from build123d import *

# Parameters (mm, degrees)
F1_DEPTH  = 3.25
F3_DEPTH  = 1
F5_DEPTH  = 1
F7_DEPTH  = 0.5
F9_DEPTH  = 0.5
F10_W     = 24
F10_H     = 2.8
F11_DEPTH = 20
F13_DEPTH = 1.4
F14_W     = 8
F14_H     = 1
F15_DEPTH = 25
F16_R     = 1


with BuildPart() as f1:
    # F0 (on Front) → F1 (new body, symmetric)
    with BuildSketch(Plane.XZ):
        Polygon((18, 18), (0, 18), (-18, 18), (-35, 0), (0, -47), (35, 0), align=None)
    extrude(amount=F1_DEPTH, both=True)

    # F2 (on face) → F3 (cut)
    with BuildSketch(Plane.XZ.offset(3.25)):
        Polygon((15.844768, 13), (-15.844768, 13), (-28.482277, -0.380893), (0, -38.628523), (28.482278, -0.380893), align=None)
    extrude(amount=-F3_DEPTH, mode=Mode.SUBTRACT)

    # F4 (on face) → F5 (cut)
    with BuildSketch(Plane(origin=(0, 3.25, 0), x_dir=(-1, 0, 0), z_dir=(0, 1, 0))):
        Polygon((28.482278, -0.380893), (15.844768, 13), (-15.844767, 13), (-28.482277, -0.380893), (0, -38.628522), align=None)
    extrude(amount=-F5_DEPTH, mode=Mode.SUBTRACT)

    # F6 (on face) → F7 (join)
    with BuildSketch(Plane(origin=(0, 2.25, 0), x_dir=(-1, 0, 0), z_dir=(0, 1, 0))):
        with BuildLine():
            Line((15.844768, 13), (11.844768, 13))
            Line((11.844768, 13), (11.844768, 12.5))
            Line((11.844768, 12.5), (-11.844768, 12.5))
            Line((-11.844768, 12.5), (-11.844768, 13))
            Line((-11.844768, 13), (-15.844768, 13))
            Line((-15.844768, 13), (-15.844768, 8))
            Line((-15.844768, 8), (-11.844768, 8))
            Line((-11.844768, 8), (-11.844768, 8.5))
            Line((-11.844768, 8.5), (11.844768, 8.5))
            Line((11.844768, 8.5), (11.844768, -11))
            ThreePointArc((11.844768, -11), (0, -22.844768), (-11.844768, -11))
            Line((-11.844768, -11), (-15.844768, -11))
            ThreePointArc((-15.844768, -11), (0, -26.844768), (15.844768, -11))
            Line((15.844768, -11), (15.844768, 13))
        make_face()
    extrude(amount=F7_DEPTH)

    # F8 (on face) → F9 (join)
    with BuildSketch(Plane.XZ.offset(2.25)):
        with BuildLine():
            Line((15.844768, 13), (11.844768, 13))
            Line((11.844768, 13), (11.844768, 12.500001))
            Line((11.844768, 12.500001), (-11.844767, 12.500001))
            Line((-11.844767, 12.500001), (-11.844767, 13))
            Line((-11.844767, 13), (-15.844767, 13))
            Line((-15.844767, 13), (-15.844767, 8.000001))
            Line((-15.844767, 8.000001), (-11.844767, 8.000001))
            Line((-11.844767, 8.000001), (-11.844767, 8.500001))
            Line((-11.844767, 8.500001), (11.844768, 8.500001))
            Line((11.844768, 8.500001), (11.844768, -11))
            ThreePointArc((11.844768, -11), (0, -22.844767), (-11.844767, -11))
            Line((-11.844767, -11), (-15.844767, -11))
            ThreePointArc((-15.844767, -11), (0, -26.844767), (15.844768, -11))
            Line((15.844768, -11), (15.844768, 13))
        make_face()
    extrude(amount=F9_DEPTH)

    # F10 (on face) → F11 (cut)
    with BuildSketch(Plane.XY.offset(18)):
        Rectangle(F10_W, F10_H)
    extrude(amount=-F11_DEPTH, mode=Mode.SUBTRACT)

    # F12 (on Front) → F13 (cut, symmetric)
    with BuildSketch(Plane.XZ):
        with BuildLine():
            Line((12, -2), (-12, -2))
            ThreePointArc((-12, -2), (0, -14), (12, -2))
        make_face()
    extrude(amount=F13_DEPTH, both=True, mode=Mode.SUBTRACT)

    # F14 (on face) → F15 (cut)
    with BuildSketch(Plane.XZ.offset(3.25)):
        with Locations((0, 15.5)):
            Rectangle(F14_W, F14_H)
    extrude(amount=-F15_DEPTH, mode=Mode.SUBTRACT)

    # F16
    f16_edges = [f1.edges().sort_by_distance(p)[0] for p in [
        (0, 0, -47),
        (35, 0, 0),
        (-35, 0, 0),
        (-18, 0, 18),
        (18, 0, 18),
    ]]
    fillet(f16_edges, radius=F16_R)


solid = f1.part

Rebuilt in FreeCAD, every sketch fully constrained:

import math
import FreeCAD as App
import Part
import Sketcher


def edges_at(feature, points):
    """Names of the edges that pass closest to the given points."""
    edges = feature.Shape.Edges
    near = lambda p: min(range(len(edges)), key=lambda i: edges[i].distToShape(Part.Vertex(*p))[0])
    return sorted({f"Edge{near(p) + 1}" for p in points})

doc = App.newDocument("Part")
body = doc.addObject("PartDesign::Body", "Body")

sketch1 = doc.addObject("Sketcher::SketchObject", "Sketch")
body.addObject(sketch1)
sketch1.AttachmentSupport = (doc.XZ_Plane, [""])
sketch1.MapMode = "FlatFace"
sketch1.addGeometry([
    Part.LineSegment(App.Vector(18, 18, 0), App.Vector(-18, 18, 0)),
    Part.LineSegment(App.Vector(-18, 18, 0), App.Vector(-35, 0, 0)),
    Part.LineSegment(App.Vector(-35, 0, 0), App.Vector(0, -47, 0)),
    Part.LineSegment(App.Vector(0, -47, 0), App.Vector(35, 0, 0)),
    Part.LineSegment(App.Vector(35, 0, 0), App.Vector(18, 18, 0)),
], False)
sketch1.addConstraint([
    Sketcher.Constraint("Coincident", 0, 2, 1, 1),
    Sketcher.Constraint("Coincident", 1, 2, 2, 1),
    Sketcher.Constraint("Coincident", 2, 2, 3, 1),
    Sketcher.Constraint("Coincident", 3, 2, 4, 1),
    Sketcher.Constraint("Coincident", 4, 2, 0, 1),
    Sketcher.Constraint("Horizontal", 0),
    Sketcher.Constraint("Symmetric", 1, 2, 3, 2, -1, 1),
    Sketcher.Constraint("PointOnObject", 1, 2, -1),
    Sketcher.Constraint("PointOnObject", 2, 2, -2),
    Sketcher.Constraint("Equal", 1, 4),
    Sketcher.Constraint("DistanceX", 0, 2, 0, 1, 36.0),
    Sketcher.Constraint("DistanceY", -1, 1, 0, 2, 18.0),
    Sketcher.Constraint("DistanceX", 1, 2, -1, 1, 35.0),
    Sketcher.Constraint("DistanceY", 2, 2, -1, 1, 47.0),
])
pad1 = doc.addObject("PartDesign::Pad", "Pad")
body.addObject(pad1)
pad1.Profile = sketch1
pad1.Length = 6.5
pad1.Midplane = True

sketch2 = doc.addObject("Sketcher::SketchObject", "Sketch001")
body.addObject(sketch2)
sketch2.AttachmentSupport = (doc.XZ_Plane, [""])
sketch2.MapMode = "FlatFace"
sketch2.AttachmentOffset = App.Placement(App.Vector(0, 0, 3.25), App.Rotation())
sketch2.addGeometry([
    Part.LineSegment(App.Vector(16, 13, 0), App.Vector(-16, 13, 0)),
    Part.LineSegment(App.Vector(-16, 13, 0), App.Vector(-28, 0, 0)),
    Part.LineSegment(App.Vector(-28, 0, 0), App.Vector(0, -39, 0)),
    Part.LineSegment(App.Vector(0, -39, 0), App.Vector(28, 0, 0)),
    Part.LineSegment(App.Vector(28, 0, 0), App.Vector(16, 13, 0)),
], False)
sketch2.addConstraint([
    Sketcher.Constraint("Coincident", 0, 2, 1, 1),
    Sketcher.Constraint("Coincident", 1, 2, 2, 1),
    Sketcher.Constraint("Coincident", 2, 2, 3, 1),
    Sketcher.Constraint("Coincident", 3, 2, 4, 1),
    Sketcher.Constraint("Coincident", 4, 2, 0, 1),
    Sketcher.Constraint("Horizontal", 0),
    Sketcher.Constraint("Symmetric", 1, 2, 3, 2, -2),
    Sketcher.Constraint("PointOnObject", 2, 2, -2),
    Sketcher.Constraint("Equal", 1, 4),
    Sketcher.Constraint("DistanceY", -1, 1, 0, 2, 13.0),
    Sketcher.Constraint("Distance", 3, 47.687749),
    Sketcher.Constraint("DistanceX", 0, 2, 0, 1, 31.689536),
    Sketcher.Constraint("DistanceX", -1, 1, 3, 2, 28.482278),
    Sketcher.Constraint("Distance", 1, 18.405296),
])
pocket1 = doc.addObject("PartDesign::Pocket", "Pocket")
body.addObject(pocket1)
pocket1.Profile = sketch2
pocket1.Length = 1

sketch3 = doc.addObject("Sketcher::SketchObject", "Sketch002")
body.addObject(sketch3)
sketch3.AttachmentSupport = (doc.XZ_Plane, [""])
sketch3.MapMode = "FlatFace"
sketch3.AttachmentOffset = App.Placement(App.Vector(0, 0, -3.25), App.Rotation())
sketch3.addGeometry([
    Part.LineSegment(App.Vector(-28, 0, 0), App.Vector(-16, 13, 0)),
    Part.LineSegment(App.Vector(-16, 13, 0), App.Vector(16, 13, 0)),
    Part.LineSegment(App.Vector(16, 13, 0), App.Vector(28, 0, 0)),
    Part.LineSegment(App.Vector(28, 0, 0), App.Vector(0, -39, 0)),
    Part.LineSegment(App.Vector(0, -39, 0), App.Vector(-28, 0, 0)),
], False)
sketch3.addConstraint([
    Sketcher.Constraint("Coincident", 0, 2, 1, 1),
    Sketcher.Constraint("Coincident", 1, 2, 2, 1),
    Sketcher.Constraint("Coincident", 2, 2, 3, 1),
    Sketcher.Constraint("Coincident", 3, 2, 4, 1),
    Sketcher.Constraint("Coincident", 4, 2, 0, 1),
    Sketcher.Constraint("Horizontal", 1),
    Sketcher.Constraint("Symmetric", 2, 2, 4, 2, -2),
    Sketcher.Constraint("PointOnObject", 3, 2, -2),
    Sketcher.Constraint("Equal", 0, 2),
    Sketcher.Constraint("DistanceY", -1, 1, 0, 2, 13.0),
    Sketcher.Constraint("DistanceX", 1, 1, 1, 2, 31.689535),
    Sketcher.Constraint("DistanceY", 3, 2, -1, 1, 38.628522),
    Sketcher.Constraint("DistanceX", 4, 2, -1, 1, 28.482278),
    Sketcher.Constraint("DistanceY", 3, 2, 2, 2, 38.247629),
])
pocket2 = doc.addObject("PartDesign::Pocket", "Pocket001")
body.addObject(pocket2)
pocket2.Profile = sketch3
pocket2.Length = 1
pocket2.Reversed = True

sketch4 = doc.addObject("Sketcher::SketchObject", "Sketch003")
body.addObject(sketch4)
sketch4.AttachmentSupport = (doc.XZ_Plane, [""])
sketch4.MapMode = "FlatFace"
sketch4.AttachmentOffset = App.Placement(App.Vector(0, 0, -2.25), App.Rotation())
sketch4.addGeometry([
    Part.LineSegment(App.Vector(-15.8, 13, 0), App.Vector(-11.8, 13, 0)),
    Part.LineSegment(App.Vector(-11.8, 13, 0), App.Vector(-11.8, 12.5, 0)),
    Part.LineSegment(App.Vector(-11.8, 12.5, 0), App.Vector(11.8, 12.5, 0)),
    Part.LineSegment(App.Vector(11.8, 12.5, 0), App.Vector(11.8, 13, 0)),
    Part.LineSegment(App.Vector(11.8, 13, 0), App.Vector(15.8, 13, 0)),
    Part.LineSegment(App.Vector(15.8, 13, 0), App.Vector(15.8, 8, 0)),
    Part.LineSegment(App.Vector(15.8, 8, 0), App.Vector(11.8, 8, 0)),
    Part.LineSegment(App.Vector(11.8, 8, 0), App.Vector(11.8, 8.5, 0)),
    Part.LineSegment(App.Vector(11.8, 8.5, 0), App.Vector(-11.8, 8.5, 0)),
    Part.LineSegment(App.Vector(-11.8, 8.5, 0), App.Vector(-11.8, -11, 0)),
    Part.ArcOfCircle(Part.Circle(App.Vector(0, -11, 0), App.Vector(0, 0, 1), 11.8), math.radians(180), math.radians(360)),
    Part.LineSegment(App.Vector(11.8, -11, 0), App.Vector(15.8, -11, 0)),
    Part.ArcOfCircle(Part.Circle(App.Vector(0, -11, 0), App.Vector(0, 0, 1), 15.8), math.radians(180), math.radians(360)),
    Part.LineSegment(App.Vector(-15.8, -11, 0), App.Vector(-15.8, 13, 0)),
], False)
sketch4.addConstraint([
    Sketcher.Constraint("Coincident", 0, 2, 1, 1),
    Sketcher.Constraint("Coincident", 1, 2, 2, 1),
    Sketcher.Constraint("Coincident", 2, 2, 3, 1),
    Sketcher.Constraint("Coincident", 3, 2, 4, 1),
    Sketcher.Constraint("Coincident", 4, 2, 5, 1),
    Sketcher.Constraint("Coincident", 5, 2, 6, 1),
    Sketcher.Constraint("Coincident", 6, 2, 7, 1),
    Sketcher.Constraint("Coincident", 7, 2, 8, 1),
    Sketcher.Constraint("Coincident", 8, 2, 9, 1),
    Sketcher.Constraint("Tangent", 9, 2, 10, 1),
    Sketcher.Constraint("Coincident", 10, 2, 11, 1),
    Sketcher.Constraint("Coincident", 11, 2, 12, 2),
    Sketcher.Constraint("Tangent", 12, 1, 13, 1),
    Sketcher.Constraint("Coincident", 13, 2, 0, 1),
    Sketcher.Constraint("Horizontal", 0),
    Sketcher.Constraint("Vertical", 1),
    Sketcher.Constraint("Horizontal", 2),
    Sketcher.Constraint("Vertical", 3),
    Sketcher.Constraint("Horizontal", 4),
    Sketcher.Constraint("Vertical", 5),
    Sketcher.Constraint("Horizontal", 6),
    Sketcher.Constraint("Vertical", 7),
    Sketcher.Constraint("Horizontal", 8),
    Sketcher.Constraint("Vertical", 9),
    Sketcher.Constraint("Horizontal", 11),
    Sketcher.Constraint("Vertical", 13),
    Sketcher.Constraint("Coincident", 12, 3, 10, 3),
    Sketcher.Constraint("Symmetric", 0, 2, 3, 2, -2),
    Sketcher.Constraint("Symmetric", 9, 2, 10, 2, -2),
    Sketcher.Constraint("Vertical", 3, 2, 6, 2),
    Sketcher.Constraint("Vertical", 1, 2, 8, 2),
    Sketcher.Constraint("Vertical", 5, 2, 11, 2),
    Sketcher.Constraint("Equal", 3, 7),
    Sketcher.Constraint("DistanceX", 0, 1, 0, 2, 4.0),
    Sketcher.Constraint("DistanceY", 5, 2, 5, 1, 5.0),
    Sketcher.Constraint("DistanceY", 13, 1, 13, 2, 24.0),
    Sketcher.Constraint("DistanceY", 1, 2, 1, 1, 0.5),
    Sketcher.Constraint("DistanceY", 10, 3, -1, 1, 11.0),
    Sketcher.Constraint("Radius", 10, 11.844768),
])
pad2 = doc.addObject("PartDesign::Pad", "Pad001")
body.addObject(pad2)
pad2.Profile = sketch4
pad2.Length = 0.5
pad2.Reversed = True

sketch5 = doc.addObject("Sketcher::SketchObject", "Sketch004")
body.addObject(sketch5)
sketch5.AttachmentSupport = (doc.XZ_Plane, [""])
sketch5.MapMode = "FlatFace"
sketch5.AttachmentOffset = App.Placement(App.Vector(0, 0, 2.25), App.Rotation())
sketch5.addGeometry([
    Part.LineSegment(App.Vector(15.84, 13, 0), App.Vector(11.84, 13, 0)),
    Part.LineSegment(App.Vector(11.84, 13, 0), App.Vector(11.84, 12.5, 0)),
    Part.LineSegment(App.Vector(11.84, 12.5, 0), App.Vector(-11.84, 12.5, 0)),
    Part.LineSegment(App.Vector(-11.84, 12.5, 0), App.Vector(-11.84, 13, 0)),
    Part.LineSegment(App.Vector(-11.84, 13, 0), App.Vector(-15.84, 13, 0)),
    Part.LineSegment(App.Vector(-15.84, 13, 0), App.Vector(-15.84, 8, 0)),
    Part.LineSegment(App.Vector(-15.84, 8, 0), App.Vector(-11.84, 8, 0)),
    Part.LineSegment(App.Vector(-11.84, 8, 0), App.Vector(-11.84, 8.5, 0)),
    Part.LineSegment(App.Vector(-11.84, 8.5, 0), App.Vector(11.84, 8.5, 0)),
    Part.LineSegment(App.Vector(11.84, 8.5, 0), App.Vector(11.84, -11, 0)),
    Part.ArcOfCircle(Part.Circle(App.Vector(0, -11, 0), App.Vector(0, 0, 1), 11.84), math.radians(-180), math.radians(0)),
    Part.LineSegment(App.Vector(-11.84, -11, 0), App.Vector(-15.84, -11, 0)),
    Part.ArcOfCircle(Part.Circle(App.Vector(0, -11, 0), App.Vector(0, 0, 1), 15.84), math.radians(-180), math.radians(0)),
    Part.LineSegment(App.Vector(15.84, -11, 0), App.Vector(15.84, 13, 0)),
], False)
sketch5.addConstraint([
    Sketcher.Constraint("Coincident", 0, 2, 1, 1),
    Sketcher.Constraint("Coincident", 1, 2, 2, 1),
    Sketcher.Constraint("Coincident", 2, 2, 3, 1),
    Sketcher.Constraint("Coincident", 3, 2, 4, 1),
    Sketcher.Constraint("Coincident", 4, 2, 5, 1),
    Sketcher.Constraint("Coincident", 5, 2, 6, 1),
    Sketcher.Constraint("Coincident", 6, 2, 7, 1),
    Sketcher.Constraint("Coincident", 7, 2, 8, 1),
    Sketcher.Constraint("Coincident", 8, 2, 9, 1),
    Sketcher.Constraint("Tangent", 9, 2, 10, 2),
    Sketcher.Constraint("Coincident", 10, 1, 11, 1),
    Sketcher.Constraint("Coincident", 11, 2, 12, 1),
    Sketcher.Constraint("Tangent", 12, 2, 13, 1),
    Sketcher.Constraint("Coincident", 13, 2, 0, 1),
    Sketcher.Constraint("Horizontal", 0),
    Sketcher.Constraint("Vertical", 1),
    Sketcher.Constraint("Horizontal", 2),
    Sketcher.Constraint("Vertical", 3),
    Sketcher.Constraint("Horizontal", 4),
    Sketcher.Constraint("Vertical", 5),
    Sketcher.Constraint("Horizontal", 6),
    Sketcher.Constraint("Vertical", 7),
    Sketcher.Constraint("Horizontal", 8),
    Sketcher.Constraint("Vertical", 9),
    Sketcher.Constraint("Horizontal", 11),
    Sketcher.Constraint("Vertical", 13),
    Sketcher.Constraint("Coincident", 12, 3, 10, 3),
    Sketcher.Constraint("Symmetric", 0, 2, 3, 2, -2),
    Sketcher.Constraint("Symmetric", 9, 2, 10, 1, -2),
    Sketcher.Constraint("Vertical", 3, 2, 6, 2),
    Sketcher.Constraint("Vertical", 1, 2, 8, 2),
    Sketcher.Constraint("Vertical", 5, 2, 11, 2),
    Sketcher.Constraint("Equal", 3, 7),
    Sketcher.Constraint("DistanceX", 0, 2, 0, 1, 4.0),
    Sketcher.Constraint("DistanceY", 5, 2, 5, 1, 4.999999),
    Sketcher.Constraint("DistanceY", 13, 1, 13, 2, 24.0),
    Sketcher.Constraint("DistanceY", 1, 2, 1, 1, 0.499999),
    Sketcher.Constraint("DistanceY", 10, 3, -1, 1, 10.999999),
    Sketcher.Constraint("Radius", 10, 11.844767),
])
pad3 = doc.addObject("PartDesign::Pad", "Pad002")
body.addObject(pad3)
pad3.Profile = sketch5
pad3.Length = 0.5

sketch6 = doc.addObject("Sketcher::SketchObject", "Sketch005")
body.addObject(sketch6)
sketch6.AttachmentSupport = (doc.XY_Plane, [""])
sketch6.MapMode = "FlatFace"
sketch6.AttachmentOffset = App.Placement(App.Vector(0, 0, 18), App.Rotation())
sketch6.addGeometry([
    Part.LineSegment(App.Vector(-12, 1.4, 0), App.Vector(-12, -1.4, 0)),
    Part.LineSegment(App.Vector(-12, -1.4, 0), App.Vector(12, -1.4, 0)),
    Part.LineSegment(App.Vector(12, -1.4, 0), App.Vector(12, 1.4, 0)),
    Part.LineSegment(App.Vector(12, 1.4, 0), App.Vector(-12, 1.4, 0)),
], False)
sketch6.addConstraint([
    Sketcher.Constraint("Coincident", 0, 2, 1, 1),
    Sketcher.Constraint("Coincident", 1, 2, 2, 1),
    Sketcher.Constraint("Coincident", 2, 2, 3, 1),
    Sketcher.Constraint("Coincident", 3, 2, 0, 1),
    Sketcher.Constraint("Vertical", 0),
    Sketcher.Constraint("Horizontal", 1),
    Sketcher.Constraint("Vertical", 2),
    Sketcher.Constraint("Horizontal", 3),
    Sketcher.Constraint("Symmetric", 0, 2, 2, 2, -1, 1),
    Sketcher.Constraint("DistanceX", 1, 1, 1, 2, 24.0),
    Sketcher.Constraint("DistanceY", 0, 2, 0, 1, 2.8),
])
pocket3 = doc.addObject("PartDesign::Pocket", "Pocket002")
body.addObject(pocket3)
pocket3.Profile = sketch6
pocket3.Length = 20

sketch7 = doc.addObject("Sketcher::SketchObject", "Sketch006")
body.addObject(sketch7)
sketch7.AttachmentSupport = (doc.XZ_Plane, [""])
sketch7.MapMode = "FlatFace"
sketch7.addGeometry([
    Part.LineSegment(App.Vector(12, -2, 0), App.Vector(-12, -2, 0)),
    Part.ArcOfCircle(Part.Circle(App.Vector(0, -2, 0), App.Vector(0, 0, 1), 12), math.radians(180), math.radians(360)),
], False)
sketch7.addConstraint([
    Sketcher.Constraint("Coincident", 0, 1, 1, 2),
    Sketcher.Constraint("Coincident", 1, 1, 0, 2),
    Sketcher.Constraint("Horizontal", 0),
    Sketcher.Constraint("PointOnObject", 1, 3, -2),
    Sketcher.Constraint("Horizontal", 1, 3, 0, 1),
    Sketcher.Constraint("Radius", 1, 12.0),
    Sketcher.Constraint("DistanceY", 1, 3, -1, 1, 2.0),
])
pocket4 = doc.addObject("PartDesign::Pocket", "Pocket003")
body.addObject(pocket4)
pocket4.Profile = sketch7
pocket4.Length = 2.8
pocket4.Midplane = True

sketch8 = doc.addObject("Sketcher::SketchObject", "Sketch007")
body.addObject(sketch8)
sketch8.AttachmentSupport = (doc.XZ_Plane, [""])
sketch8.MapMode = "FlatFace"
sketch8.AttachmentOffset = App.Placement(App.Vector(0, 0, 3.25), App.Rotation())
sketch8.addGeometry([
    Part.LineSegment(App.Vector(-4, 16, 0), App.Vector(-4, 15, 0)),
    Part.LineSegment(App.Vector(-4, 15, 0), App.Vector(4, 15, 0)),
    Part.LineSegment(App.Vector(4, 15, 0), App.Vector(4, 16, 0)),
    Part.LineSegment(App.Vector(4, 16, 0), App.Vector(-4, 16, 0)),
], False)
sketch8.addConstraint([
    Sketcher.Constraint("Coincident", 0, 2, 1, 1),
    Sketcher.Constraint("Coincident", 1, 2, 2, 1),
    Sketcher.Constraint("Coincident", 2, 2, 3, 1),
    Sketcher.Constraint("Coincident", 3, 2, 0, 1),
    Sketcher.Constraint("Vertical", 0),
    Sketcher.Constraint("Horizontal", 1),
    Sketcher.Constraint("Vertical", 2),
    Sketcher.Constraint("Horizontal", 3),
    Sketcher.Constraint("DistanceX", 1, 1, 1, 2, 8.0),
    Sketcher.Constraint("DistanceY", 0, 2, 0, 1, 1.0),
    Sketcher.Constraint("DistanceX", 0, 2, -1, 1, 4.0),
    Sketcher.Constraint("DistanceY", -1, 1, 0, 2, 15.0),
])
pocket5 = doc.addObject("PartDesign::Pocket", "Pocket004")
body.addObject(pocket5)
pocket5.Profile = sketch8
pocket5.Length = 25
doc.recompute()

fillet = doc.addObject("PartDesign::Fillet", "Fillet")
body.addObject(fillet)
fillet.Base = (pocket5, edges_at(pocket5, [
    (0, 0, -47),
    (35, 0, 0),
    (-35, 0, 0),
    (-18, 0, 18),
    (18, 0, 18),
]))
fillet.Radius = 1

doc.recompute()
